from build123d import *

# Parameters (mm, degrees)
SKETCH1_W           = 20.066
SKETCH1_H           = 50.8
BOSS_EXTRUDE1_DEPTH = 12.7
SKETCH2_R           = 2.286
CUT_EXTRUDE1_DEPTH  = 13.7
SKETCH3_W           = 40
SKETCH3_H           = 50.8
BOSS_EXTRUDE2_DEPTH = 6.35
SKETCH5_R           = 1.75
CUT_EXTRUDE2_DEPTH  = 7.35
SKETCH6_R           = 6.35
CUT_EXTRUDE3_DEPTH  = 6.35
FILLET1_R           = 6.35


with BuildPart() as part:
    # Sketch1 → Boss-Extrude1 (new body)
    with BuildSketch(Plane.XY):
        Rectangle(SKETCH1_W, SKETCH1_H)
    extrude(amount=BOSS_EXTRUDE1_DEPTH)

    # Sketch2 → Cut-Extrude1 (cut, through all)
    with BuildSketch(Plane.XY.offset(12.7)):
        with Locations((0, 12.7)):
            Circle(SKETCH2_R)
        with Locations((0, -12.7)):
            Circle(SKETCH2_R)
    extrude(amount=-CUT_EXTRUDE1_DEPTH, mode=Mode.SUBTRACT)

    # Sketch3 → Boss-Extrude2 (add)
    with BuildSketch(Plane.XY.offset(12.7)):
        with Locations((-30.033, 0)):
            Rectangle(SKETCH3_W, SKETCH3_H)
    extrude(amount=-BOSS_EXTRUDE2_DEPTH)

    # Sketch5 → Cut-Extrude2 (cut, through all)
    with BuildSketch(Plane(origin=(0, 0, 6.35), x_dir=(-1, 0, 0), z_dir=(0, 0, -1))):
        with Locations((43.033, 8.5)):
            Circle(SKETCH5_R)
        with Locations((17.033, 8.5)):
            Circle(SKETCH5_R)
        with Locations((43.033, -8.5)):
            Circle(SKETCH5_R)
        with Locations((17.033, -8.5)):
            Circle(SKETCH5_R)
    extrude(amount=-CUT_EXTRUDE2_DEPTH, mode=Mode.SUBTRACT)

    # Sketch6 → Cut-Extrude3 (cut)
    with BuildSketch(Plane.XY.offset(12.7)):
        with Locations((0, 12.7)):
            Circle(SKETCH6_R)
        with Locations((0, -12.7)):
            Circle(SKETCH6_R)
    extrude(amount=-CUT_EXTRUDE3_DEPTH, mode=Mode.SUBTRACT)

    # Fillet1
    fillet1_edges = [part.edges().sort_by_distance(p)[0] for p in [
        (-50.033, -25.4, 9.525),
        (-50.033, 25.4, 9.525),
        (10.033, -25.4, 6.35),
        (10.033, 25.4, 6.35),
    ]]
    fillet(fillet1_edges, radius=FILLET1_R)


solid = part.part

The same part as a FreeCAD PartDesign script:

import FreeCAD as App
import Part
import Sketcher
from FreeCAD import Vector
Q = App.Units.Quantity


def edges_at(feature, points):
    """Names of the edges that pass closest to the given points."""
    edges = feature.Shape.Edges
    near = lambda p: min(range(len(edges)), key=lambda i: edges[i].distToShape(Part.Vertex(*p))[0])
    return sorted({f"Edge{near(p) + 1}" for p in points})

doc = App.newDocument("Part")
body = doc.addObject("PartDesign::Body", "Body")

sketch1 = doc.addObject("Sketcher::SketchObject", "Sketch")
body.addObject(sketch1)
sketch1.AttachmentSupport = (doc.XY_Plane, [""])
sketch1.MapMode = "FlatFace"
sketch1.addGeometry(Part.LineSegment(Vector(-10, 25, 0), Vector(-10, -25, 0)), False)
sketch1.addGeometry(Part.LineSegment(Vector(-10, -25, 0), Vector(10, -25, 0)), False)
sketch1.addGeometry(Part.LineSegment(Vector(10, -25, 0), Vector(10, 25, 0)), False)
sketch1.addGeometry(Part.LineSegment(Vector(10, 25, 0), Vector(-10, 25, 0)), False)
sketch1.addConstraint(Sketcher.Constraint("Coincident", 0, 2, 1, 1))
sketch1.addConstraint(Sketcher.Constraint("Coincident", 1, 2, 2, 1))
sketch1.addConstraint(Sketcher.Constraint("Coincident", 2, 2, 3, 1))
sketch1.addConstraint(Sketcher.Constraint("Coincident", 3, 2, 0, 1))
sketch1.addConstraint(Sketcher.Constraint("Vertical", 0))
sketch1.addConstraint(Sketcher.Constraint("Horizontal", 1))
sketch1.addConstraint(Sketcher.Constraint("Vertical", 2))
sketch1.addConstraint(Sketcher.Constraint("Horizontal", 3))
sketch1.addConstraint(Sketcher.Constraint("Symmetric", 0, 2, 2, 2, -1, 1))
sketch1.addConstraint(Sketcher.Constraint("DistanceY", 0, 2, 0, 1, Q("2 in")))
sketch1.addConstraint(Sketcher.Constraint("DistanceX", 1, 1, 1, 2, Q("0.79 in")))
pad1 = doc.addObject("PartDesign::Pad", "Pad")
body.addObject(pad1)
pad1.Profile = sketch1
pad1.Length = Q("0.5 in")

sketch2 = doc.addObject("Sketcher::SketchObject", "Sketch001")
body.addObject(sketch2)
sketch2.AttachmentSupport = (doc.XY_Plane, [""])
sketch2.MapMode = "FlatFace"
sketch2.AttachmentOffset = App.Placement(Vector(0, 0, 0.5 * 25.4), App.Rotation())
sketch2.addGeometry(Part.Circle(Vector(0, 12.7, 0), Vector(0, 0, 1), 2.3), False)
sketch2.addGeometry(Part.Circle(Vector(0, -12.7, 0), Vector(0, 0, 1), 2.3), False)
sketch2.addConstraint(Sketcher.Constraint("Equal", 0, 1))
sketch2.addConstraint(Sketcher.Constraint("Symmetric", 0, 3, 1, 3, -1, 1))
sketch2.addConstraint(Sketcher.Constraint("PointOnObject", 0, 3, -2))
sketch2.addConstraint(Sketcher.Constraint("Diameter", 0, Q("0.18 in")))
sketch2.addConstraint(Sketcher.Constraint("DistanceY", 1, 3, 0, 3, Q("1 in")))
pocket1 = doc.addObject("PartDesign::Pocket", "Pocket")
body.addObject(pocket1)
pocket1.Profile = sketch2
pocket1.Type = "ThroughAll"

sketch3 = doc.addObject("Sketcher::SketchObject", "Sketch002")
body.addObject(sketch3)
sketch3.AttachmentSupport = (doc.XY_Plane, [""])
sketch3.MapMode = "FlatFace"
sketch3.AttachmentOffset = App.Placement(Vector(0, 0, 0.5 * 25.4), App.Rotation())
sketch3.addGeometry(Part.LineSegment(Vector(-50, 25, 0), Vector(-50, -25, 0)), False)
sketch3.addGeometry(Part.LineSegment(Vector(-50, -25, 0), Vector(-10, -25, 0)), False)
sketch3.addGeometry(Part.LineSegment(Vector(-10, -25, 0), Vector(-10, 25, 0)), False)
sketch3.addGeometry(Part.LineSegment(Vector(-10, 25, 0), Vector(-50, 25, 0)), False)
sketch3.addConstraint(Sketcher.Constraint("Coincident", 0, 2, 1, 1))
sketch3.addConstraint(Sketcher.Constraint("Coincident", 1, 2, 2, 1))
sketch3.addConstraint(Sketcher.Constraint("Coincident", 2, 2, 3, 1))
sketch3.addConstraint(Sketcher.Constraint("Coincident", 3, 2, 0, 1))
sketch3.addConstraint(Sketcher.Constraint("Vertical", 0))
sketch3.addConstraint(Sketcher.Constraint("Horizontal", 1))
sketch3.addConstraint(Sketcher.Constraint("Vertical", 2))
sketch3.addConstraint(Sketcher.Constraint("Horizontal", 3))
sketch3.addConstraint(Sketcher.Constraint("DistanceY", 0, 2, 0, 1, Q("2 in")))
sketch3.addConstraint(Sketcher.Constraint("DistanceY", 0, 2, -1, 1, Q("1 in")))
sketch3.addConstraint(Sketcher.Constraint("DistanceX", 1, 2, -1, 1, Q("0.395 in")))
sketch3.addConstraint(Sketcher.Constraint("DistanceX", 1, 1, 1, 2, Q("40 mm")))
pad2 = doc.addObject("PartDesign::Pad", "Pad001")
body.addObject(pad2)
pad2.Profile = sketch3
pad2.Length = Q("0.25 in")
pad2.Reversed = True

sketch4 = doc.addObject("Sketcher::SketchObject", "Sketch003")
body.addObject(sketch4)
sketch4.AttachmentSupport = (doc.XY_Plane, [""])
sketch4.MapMode = "FlatFace"
sketch4.AttachmentOffset = App.Placement(Vector(0, 0, 0.25 * 25.4), App.Rotation())
sketch4.addGeometry(Part.Circle(Vector(-43, 8.5, 0), Vector(0, 0, 1), 1.8), False)
sketch4.addGeometry(Part.Circle(Vector(-17, 8.5, 0), Vector(0, 0, 1), 1.8), False)
sketch4.addGeometry(Part.Circle(Vector(-43, -8.5, 0), Vector(0, 0, 1), 1.8), False)
sketch4.addGeometry(Part.Circle(Vector(-17, -8.5, 0), Vector(0, 0, 1), 1.8), False)
sketch4.addConstraint(Sketcher.Constraint("Equal", 0, 1))
sketch4.addConstraint(Sketcher.Constraint("Equal", 1, 2))
sketch4.addConstraint(Sketcher.Constraint("Equal", 2, 3))
sketch4.addConstraint(Sketcher.Constraint("Symmetric", 0, 3, 2, 3, -1))
sketch4.addConstraint(Sketcher.Constraint("Symmetric", 1, 3, 3, 3, -1))
sketch4.addConstraint(Sketcher.Constraint("Horizontal", 0, 3, 1, 3))
sketch4.addConstraint(Sketcher.Constraint("Diameter", 0, Q("3.5 mm")))
sketch4.addConstraint(Sketcher.Constraint("DistanceX", 0, 3, -1, 1, Q("43.033 mm")))
sketch4.addConstraint(Sketcher.Constraint("DistanceY", -1, 1, 0, 3, Q("8.5 mm")))
sketch4.addConstraint(Sketcher.Constraint("DistanceX", 1, 3, -1, 1, Q("17.033 mm")))
pocket2 = doc.addObject("PartDesign::Pocket", "Pocket001")
body.addObject(pocket2)
pocket2.Profile = sketch4
pocket2.Type = "ThroughAll"
pocket2.Reversed = True

sketch5 = doc.addObject("Sketcher::SketchObject", "Sketch004")
body.addObject(sketch5)
sketch5.AttachmentSupport = (doc.XY_Plane, [""])
sketch5.MapMode = "FlatFace"
sketch5.AttachmentOffset = App.Placement(Vector(0, 0, 0.5 * 25.4), App.Rotation())
sketch5.addGeometry(Part.Circle(Vector(0, 13, 0), Vector(0, 0, 1), 6), False)
sketch5.addGeometry(Part.Circle(Vector(0, -13, 0), Vector(0, 0, 1), 6), False)
sketch5.addConstraint(Sketcher.Constraint("Equal", 0, 1))
sketch5.addConstraint(Sketcher.Constraint("Symmetric", 0, 3, 1, 3, -1, 1))
sketch5.addConstraint(Sketcher.Constraint("PointOnObject", 0, 3, -2))
sketch5.addConstraint(Sketcher.Constraint("Diameter", 0, Q("0.5 in")))
sketch5.addConstraint(Sketcher.Constraint("DistanceY", 1, 3, 0, 3, Q("1 in")))
pocket3 = doc.addObject("PartDesign::Pocket", "Pocket002")
body.addObject(pocket3)
pocket3.Profile = sketch5
pocket3.Length = Q("0.25 in")
doc.recompute()

fillet = doc.addObject("PartDesign::Fillet", "Fillet")
body.addObject(fillet)
fillet.Base = (pocket3, edges_at(pocket3, [
    (-50.033, -25.4, 9.525),
    (-50.033, 25.4, 9.525),
    (10.033, -25.4, 6.35),
    (10.033, 25.4, 6.35),
]))
fillet.Radius = Q("0.25 in")

doc.recompute()
